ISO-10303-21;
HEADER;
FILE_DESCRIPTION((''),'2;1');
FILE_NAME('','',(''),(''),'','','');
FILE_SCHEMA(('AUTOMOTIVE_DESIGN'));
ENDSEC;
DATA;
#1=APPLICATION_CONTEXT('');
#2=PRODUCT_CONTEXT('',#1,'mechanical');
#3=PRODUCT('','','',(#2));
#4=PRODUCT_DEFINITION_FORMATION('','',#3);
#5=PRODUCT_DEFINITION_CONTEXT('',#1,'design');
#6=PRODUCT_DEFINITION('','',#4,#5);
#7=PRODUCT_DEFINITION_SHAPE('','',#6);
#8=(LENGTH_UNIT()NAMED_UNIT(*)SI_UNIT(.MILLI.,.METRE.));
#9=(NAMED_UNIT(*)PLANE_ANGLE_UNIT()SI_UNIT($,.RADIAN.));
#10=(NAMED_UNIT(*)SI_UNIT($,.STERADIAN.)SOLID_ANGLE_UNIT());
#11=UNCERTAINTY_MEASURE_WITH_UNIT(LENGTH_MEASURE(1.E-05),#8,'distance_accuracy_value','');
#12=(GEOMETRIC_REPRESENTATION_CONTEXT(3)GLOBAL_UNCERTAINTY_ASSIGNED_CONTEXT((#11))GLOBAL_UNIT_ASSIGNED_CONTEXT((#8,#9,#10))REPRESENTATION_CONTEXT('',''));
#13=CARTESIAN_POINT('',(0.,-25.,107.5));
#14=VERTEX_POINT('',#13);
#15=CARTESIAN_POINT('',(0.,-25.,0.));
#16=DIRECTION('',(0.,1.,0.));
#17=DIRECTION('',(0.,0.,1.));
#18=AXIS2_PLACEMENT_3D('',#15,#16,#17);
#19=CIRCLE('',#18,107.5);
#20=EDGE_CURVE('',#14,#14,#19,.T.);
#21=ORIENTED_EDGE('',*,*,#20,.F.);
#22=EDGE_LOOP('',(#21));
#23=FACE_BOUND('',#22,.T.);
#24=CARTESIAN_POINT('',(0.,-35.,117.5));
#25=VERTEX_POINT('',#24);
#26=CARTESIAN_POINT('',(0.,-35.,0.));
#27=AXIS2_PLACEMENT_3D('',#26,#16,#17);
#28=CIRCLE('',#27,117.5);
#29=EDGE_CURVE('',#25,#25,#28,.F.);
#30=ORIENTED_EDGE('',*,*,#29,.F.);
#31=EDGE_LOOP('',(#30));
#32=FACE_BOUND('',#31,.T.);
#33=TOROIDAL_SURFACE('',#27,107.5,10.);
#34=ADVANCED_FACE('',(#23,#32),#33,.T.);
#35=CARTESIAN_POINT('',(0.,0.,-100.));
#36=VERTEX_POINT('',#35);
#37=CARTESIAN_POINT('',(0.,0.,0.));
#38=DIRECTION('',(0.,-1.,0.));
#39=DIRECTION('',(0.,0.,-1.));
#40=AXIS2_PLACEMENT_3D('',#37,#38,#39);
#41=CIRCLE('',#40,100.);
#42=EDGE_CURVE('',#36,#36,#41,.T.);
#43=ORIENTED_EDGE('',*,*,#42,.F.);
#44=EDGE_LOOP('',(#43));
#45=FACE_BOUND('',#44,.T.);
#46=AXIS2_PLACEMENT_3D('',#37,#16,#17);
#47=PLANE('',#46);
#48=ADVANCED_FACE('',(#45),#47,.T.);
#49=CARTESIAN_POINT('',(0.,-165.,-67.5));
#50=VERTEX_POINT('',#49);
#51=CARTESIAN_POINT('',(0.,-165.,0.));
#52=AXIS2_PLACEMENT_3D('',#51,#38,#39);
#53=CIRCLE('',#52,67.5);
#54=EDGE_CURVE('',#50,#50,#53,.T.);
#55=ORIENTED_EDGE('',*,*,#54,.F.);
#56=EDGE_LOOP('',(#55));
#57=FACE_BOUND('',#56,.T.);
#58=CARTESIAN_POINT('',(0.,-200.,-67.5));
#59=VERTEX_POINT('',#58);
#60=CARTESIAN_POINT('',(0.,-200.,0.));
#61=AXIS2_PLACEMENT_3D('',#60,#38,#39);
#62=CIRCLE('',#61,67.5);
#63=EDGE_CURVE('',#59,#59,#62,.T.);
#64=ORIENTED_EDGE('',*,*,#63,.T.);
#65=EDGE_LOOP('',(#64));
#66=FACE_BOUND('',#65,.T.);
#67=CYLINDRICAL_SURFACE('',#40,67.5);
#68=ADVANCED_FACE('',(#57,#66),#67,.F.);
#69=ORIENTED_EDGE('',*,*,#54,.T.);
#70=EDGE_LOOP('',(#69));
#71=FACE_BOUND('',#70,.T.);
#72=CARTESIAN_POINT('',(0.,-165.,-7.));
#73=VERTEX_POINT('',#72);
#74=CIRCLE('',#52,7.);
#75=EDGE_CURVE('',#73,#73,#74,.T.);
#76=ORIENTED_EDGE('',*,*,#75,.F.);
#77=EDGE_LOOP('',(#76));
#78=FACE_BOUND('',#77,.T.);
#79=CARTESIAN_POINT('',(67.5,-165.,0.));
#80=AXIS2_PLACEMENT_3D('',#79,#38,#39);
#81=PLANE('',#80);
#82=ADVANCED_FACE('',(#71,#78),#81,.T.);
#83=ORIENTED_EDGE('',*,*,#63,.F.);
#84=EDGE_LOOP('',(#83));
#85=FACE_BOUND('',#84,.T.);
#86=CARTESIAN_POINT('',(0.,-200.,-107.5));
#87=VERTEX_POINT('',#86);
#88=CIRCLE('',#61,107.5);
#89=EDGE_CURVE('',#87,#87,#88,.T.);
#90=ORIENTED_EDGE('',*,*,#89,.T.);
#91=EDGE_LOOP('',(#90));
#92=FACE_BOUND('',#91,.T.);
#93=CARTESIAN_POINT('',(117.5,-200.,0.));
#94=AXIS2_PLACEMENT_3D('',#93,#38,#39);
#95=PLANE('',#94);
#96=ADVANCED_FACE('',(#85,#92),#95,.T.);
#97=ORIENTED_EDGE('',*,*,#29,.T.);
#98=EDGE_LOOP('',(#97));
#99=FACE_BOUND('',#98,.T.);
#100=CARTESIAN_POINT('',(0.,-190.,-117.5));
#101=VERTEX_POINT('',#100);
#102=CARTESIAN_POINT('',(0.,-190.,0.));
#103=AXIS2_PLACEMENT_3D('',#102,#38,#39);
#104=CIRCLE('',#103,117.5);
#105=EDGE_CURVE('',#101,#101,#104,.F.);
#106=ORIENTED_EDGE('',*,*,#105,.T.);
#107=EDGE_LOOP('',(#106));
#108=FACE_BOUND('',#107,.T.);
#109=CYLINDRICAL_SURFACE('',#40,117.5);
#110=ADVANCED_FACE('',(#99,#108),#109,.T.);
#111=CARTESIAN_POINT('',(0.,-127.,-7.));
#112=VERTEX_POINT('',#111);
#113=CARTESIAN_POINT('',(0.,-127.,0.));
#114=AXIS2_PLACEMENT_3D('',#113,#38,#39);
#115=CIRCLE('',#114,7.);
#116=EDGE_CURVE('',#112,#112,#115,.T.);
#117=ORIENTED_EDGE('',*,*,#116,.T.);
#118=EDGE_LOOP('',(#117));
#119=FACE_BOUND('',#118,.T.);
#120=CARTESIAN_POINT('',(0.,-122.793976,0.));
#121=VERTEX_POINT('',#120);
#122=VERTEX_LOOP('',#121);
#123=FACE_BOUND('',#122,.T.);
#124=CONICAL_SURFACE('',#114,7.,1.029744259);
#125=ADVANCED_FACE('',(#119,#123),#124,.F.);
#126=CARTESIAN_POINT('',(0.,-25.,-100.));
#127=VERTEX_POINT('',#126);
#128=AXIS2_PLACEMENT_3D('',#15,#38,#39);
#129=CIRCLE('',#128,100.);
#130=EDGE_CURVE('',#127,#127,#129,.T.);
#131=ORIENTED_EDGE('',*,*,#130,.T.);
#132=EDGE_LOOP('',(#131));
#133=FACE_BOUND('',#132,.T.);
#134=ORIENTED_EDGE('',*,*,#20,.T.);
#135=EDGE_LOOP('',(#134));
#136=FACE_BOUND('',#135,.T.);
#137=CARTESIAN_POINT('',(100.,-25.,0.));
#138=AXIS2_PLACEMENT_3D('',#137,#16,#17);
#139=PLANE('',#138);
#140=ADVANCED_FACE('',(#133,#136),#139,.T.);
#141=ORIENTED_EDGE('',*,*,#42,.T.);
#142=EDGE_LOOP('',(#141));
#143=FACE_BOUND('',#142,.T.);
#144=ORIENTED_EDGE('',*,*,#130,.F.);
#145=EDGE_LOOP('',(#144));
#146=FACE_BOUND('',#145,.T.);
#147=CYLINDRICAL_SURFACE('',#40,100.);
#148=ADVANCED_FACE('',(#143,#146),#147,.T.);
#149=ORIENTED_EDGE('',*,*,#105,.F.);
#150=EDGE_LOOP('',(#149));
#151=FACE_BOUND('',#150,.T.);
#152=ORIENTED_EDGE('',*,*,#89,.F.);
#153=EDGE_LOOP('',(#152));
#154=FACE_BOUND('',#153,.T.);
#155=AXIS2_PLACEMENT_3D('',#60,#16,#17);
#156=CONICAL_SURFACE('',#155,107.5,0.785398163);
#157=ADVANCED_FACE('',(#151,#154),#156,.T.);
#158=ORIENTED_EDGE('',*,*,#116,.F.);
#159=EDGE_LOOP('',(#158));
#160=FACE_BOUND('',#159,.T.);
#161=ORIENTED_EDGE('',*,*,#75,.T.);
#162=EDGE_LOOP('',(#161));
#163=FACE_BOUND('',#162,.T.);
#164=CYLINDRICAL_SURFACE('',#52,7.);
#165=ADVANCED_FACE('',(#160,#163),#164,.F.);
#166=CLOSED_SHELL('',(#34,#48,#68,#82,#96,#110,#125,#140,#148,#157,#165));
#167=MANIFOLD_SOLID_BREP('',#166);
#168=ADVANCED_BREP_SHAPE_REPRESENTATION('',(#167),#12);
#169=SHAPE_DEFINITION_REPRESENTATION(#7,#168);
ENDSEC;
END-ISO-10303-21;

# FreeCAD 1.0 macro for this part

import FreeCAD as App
import Part
import Sketcher
Q = App.Units.Quantity


def edges_at(feature, points):
    """Names of the edges that pass closest to the given points."""
    edges = feature.Shape.Edges
    near = lambda p: min(range(len(edges)), key=lambda i: edges[i].distToShape(Part.Vertex(*p))[0])
    return sorted({f"Edge{near(p) + 1}" for p in points})


def add_polygon(sketch, points):
    """Adds a closed chain of lines whose ends are joined by coincident constraints."""
    first, n = sketch.GeometryCount, len(points)
    for a, b in zip(points, points[1:] + points[:1]):
        sketch.addGeometry(Part.LineSegment(App.Vector(*a, 0), App.Vector(*b, 0)), False)
    for i in range(n):
        sketch.addConstraint(Sketcher.Constraint("Coincident", first + i, 2, first + (i + 1) % n, 1))

doc = App.newDocument("Part")
body = doc.addObject("PartDesign::Body", "Body")

sketch1 = body.newObject("Sketcher::SketchObject", "Sketch")
sketch1.AttachmentSupport = (doc.getObject("XY_Plane"), [""])
sketch1.MapMode = "FlatFace"
add_polygon(sketch1, [(100, 0), (0, 0), (0, -165), (67.5, -165), (67.5, -200), (117.5, -200), (117.5, -25), (100, -25)])
sketch1.addConstraint(Sketcher.Constraint("Horizontal", 0))
sketch1.addConstraint(Sketcher.Constraint("Vertical", 1))
sketch1.addConstraint(Sketcher.Constraint("Horizontal", 2))
sketch1.addConstraint(Sketcher.Constraint("Vertical", 3))
sketch1.addConstraint(Sketcher.Constraint("Horizontal", 4))
sketch1.addConstraint(Sketcher.Constraint("Vertical", 5))
sketch1.addConstraint(Sketcher.Constraint("Horizontal", 6))
sketch1.addConstraint(Sketcher.Constraint("Vertical", 7))
sketch1.addConstraint(Sketcher.Constraint("Coincident", 0, 2, -1, 1))
sketch1.addConstraint(Sketcher.Constraint("DistanceX", 0, 2, 0, 1, Q("100 mm")))
sketch1.addConstraint(Sketcher.Constraint("DistanceX", 4, 1, 4, 2, Q("50 mm")))
sketch1.addConstraint(Sketcher.Constraint("DistanceY", 1, 2, 1, 1, Q("165 mm")))
sketch1.addConstraint(Sketcher.Constraint("DistanceY", 3, 2, 3, 1, Q("35 mm")))
sketch1.addConstraint(Sketcher.Constraint("DistanceY", 5, 1, 5, 2, Q("175 mm")))
sketch1.addConstraint(Sketcher.Constraint("DistanceX", 2, 1, 2, 2, Q("67.5 mm")))
revolution = body.newObject("PartDesign::Revolution", "Revolution")
revolution.Profile = sketch1
revolution.ReferenceAxis = (sketch1, ["V_Axis"])
revolution.Angle = 360

sketch2 = body.newObject("Sketcher::SketchObject", "Sketch001")
sketch2.AttachmentSupport = (doc.getObject("XZ_Plane"), [""])
sketch2.MapMode = "FlatFace"
sketch2.AttachmentOffset = App.Placement(App.Vector(0, 0, 165), App.Rotation())
sketch2.addGeometry(Part.Circle(App.Vector(0, 0, 0), App.Vector(0, 0, 1), 7), False)
sketch2.addConstraint(Sketcher.Constraint("Coincident", 0, 3, -1, 1))
sketch2.addConstraint(Sketcher.Constraint("Diameter", 0, Q("14 mm")))
doc.recompute()
hole = body.newObject("PartDesign::Hole", "Hole")
hole.Profile = sketch2
hole.ThreadType = "None"
hole.Diameter = 14
hole.DepthType = "Dimension"
hole.Depth = 38
hole.DrillPoint = "Angled"
hole.DrillPointAngle = 118
doc.recompute()

chamfer = body.newObject("PartDesign::Chamfer", "Chamfer")
chamfer.Base = (hole, edges_at(hole, [(0, -200, 117.5)]))
chamfer.Size = 10
doc.recompute()

fillet = body.newObject("PartDesign::Fillet", "Fillet")
fillet.Base = (chamfer, edges_at(chamfer, [(0, -25, 117.5)]))
fillet.Radius = 10

doc.recompute()
